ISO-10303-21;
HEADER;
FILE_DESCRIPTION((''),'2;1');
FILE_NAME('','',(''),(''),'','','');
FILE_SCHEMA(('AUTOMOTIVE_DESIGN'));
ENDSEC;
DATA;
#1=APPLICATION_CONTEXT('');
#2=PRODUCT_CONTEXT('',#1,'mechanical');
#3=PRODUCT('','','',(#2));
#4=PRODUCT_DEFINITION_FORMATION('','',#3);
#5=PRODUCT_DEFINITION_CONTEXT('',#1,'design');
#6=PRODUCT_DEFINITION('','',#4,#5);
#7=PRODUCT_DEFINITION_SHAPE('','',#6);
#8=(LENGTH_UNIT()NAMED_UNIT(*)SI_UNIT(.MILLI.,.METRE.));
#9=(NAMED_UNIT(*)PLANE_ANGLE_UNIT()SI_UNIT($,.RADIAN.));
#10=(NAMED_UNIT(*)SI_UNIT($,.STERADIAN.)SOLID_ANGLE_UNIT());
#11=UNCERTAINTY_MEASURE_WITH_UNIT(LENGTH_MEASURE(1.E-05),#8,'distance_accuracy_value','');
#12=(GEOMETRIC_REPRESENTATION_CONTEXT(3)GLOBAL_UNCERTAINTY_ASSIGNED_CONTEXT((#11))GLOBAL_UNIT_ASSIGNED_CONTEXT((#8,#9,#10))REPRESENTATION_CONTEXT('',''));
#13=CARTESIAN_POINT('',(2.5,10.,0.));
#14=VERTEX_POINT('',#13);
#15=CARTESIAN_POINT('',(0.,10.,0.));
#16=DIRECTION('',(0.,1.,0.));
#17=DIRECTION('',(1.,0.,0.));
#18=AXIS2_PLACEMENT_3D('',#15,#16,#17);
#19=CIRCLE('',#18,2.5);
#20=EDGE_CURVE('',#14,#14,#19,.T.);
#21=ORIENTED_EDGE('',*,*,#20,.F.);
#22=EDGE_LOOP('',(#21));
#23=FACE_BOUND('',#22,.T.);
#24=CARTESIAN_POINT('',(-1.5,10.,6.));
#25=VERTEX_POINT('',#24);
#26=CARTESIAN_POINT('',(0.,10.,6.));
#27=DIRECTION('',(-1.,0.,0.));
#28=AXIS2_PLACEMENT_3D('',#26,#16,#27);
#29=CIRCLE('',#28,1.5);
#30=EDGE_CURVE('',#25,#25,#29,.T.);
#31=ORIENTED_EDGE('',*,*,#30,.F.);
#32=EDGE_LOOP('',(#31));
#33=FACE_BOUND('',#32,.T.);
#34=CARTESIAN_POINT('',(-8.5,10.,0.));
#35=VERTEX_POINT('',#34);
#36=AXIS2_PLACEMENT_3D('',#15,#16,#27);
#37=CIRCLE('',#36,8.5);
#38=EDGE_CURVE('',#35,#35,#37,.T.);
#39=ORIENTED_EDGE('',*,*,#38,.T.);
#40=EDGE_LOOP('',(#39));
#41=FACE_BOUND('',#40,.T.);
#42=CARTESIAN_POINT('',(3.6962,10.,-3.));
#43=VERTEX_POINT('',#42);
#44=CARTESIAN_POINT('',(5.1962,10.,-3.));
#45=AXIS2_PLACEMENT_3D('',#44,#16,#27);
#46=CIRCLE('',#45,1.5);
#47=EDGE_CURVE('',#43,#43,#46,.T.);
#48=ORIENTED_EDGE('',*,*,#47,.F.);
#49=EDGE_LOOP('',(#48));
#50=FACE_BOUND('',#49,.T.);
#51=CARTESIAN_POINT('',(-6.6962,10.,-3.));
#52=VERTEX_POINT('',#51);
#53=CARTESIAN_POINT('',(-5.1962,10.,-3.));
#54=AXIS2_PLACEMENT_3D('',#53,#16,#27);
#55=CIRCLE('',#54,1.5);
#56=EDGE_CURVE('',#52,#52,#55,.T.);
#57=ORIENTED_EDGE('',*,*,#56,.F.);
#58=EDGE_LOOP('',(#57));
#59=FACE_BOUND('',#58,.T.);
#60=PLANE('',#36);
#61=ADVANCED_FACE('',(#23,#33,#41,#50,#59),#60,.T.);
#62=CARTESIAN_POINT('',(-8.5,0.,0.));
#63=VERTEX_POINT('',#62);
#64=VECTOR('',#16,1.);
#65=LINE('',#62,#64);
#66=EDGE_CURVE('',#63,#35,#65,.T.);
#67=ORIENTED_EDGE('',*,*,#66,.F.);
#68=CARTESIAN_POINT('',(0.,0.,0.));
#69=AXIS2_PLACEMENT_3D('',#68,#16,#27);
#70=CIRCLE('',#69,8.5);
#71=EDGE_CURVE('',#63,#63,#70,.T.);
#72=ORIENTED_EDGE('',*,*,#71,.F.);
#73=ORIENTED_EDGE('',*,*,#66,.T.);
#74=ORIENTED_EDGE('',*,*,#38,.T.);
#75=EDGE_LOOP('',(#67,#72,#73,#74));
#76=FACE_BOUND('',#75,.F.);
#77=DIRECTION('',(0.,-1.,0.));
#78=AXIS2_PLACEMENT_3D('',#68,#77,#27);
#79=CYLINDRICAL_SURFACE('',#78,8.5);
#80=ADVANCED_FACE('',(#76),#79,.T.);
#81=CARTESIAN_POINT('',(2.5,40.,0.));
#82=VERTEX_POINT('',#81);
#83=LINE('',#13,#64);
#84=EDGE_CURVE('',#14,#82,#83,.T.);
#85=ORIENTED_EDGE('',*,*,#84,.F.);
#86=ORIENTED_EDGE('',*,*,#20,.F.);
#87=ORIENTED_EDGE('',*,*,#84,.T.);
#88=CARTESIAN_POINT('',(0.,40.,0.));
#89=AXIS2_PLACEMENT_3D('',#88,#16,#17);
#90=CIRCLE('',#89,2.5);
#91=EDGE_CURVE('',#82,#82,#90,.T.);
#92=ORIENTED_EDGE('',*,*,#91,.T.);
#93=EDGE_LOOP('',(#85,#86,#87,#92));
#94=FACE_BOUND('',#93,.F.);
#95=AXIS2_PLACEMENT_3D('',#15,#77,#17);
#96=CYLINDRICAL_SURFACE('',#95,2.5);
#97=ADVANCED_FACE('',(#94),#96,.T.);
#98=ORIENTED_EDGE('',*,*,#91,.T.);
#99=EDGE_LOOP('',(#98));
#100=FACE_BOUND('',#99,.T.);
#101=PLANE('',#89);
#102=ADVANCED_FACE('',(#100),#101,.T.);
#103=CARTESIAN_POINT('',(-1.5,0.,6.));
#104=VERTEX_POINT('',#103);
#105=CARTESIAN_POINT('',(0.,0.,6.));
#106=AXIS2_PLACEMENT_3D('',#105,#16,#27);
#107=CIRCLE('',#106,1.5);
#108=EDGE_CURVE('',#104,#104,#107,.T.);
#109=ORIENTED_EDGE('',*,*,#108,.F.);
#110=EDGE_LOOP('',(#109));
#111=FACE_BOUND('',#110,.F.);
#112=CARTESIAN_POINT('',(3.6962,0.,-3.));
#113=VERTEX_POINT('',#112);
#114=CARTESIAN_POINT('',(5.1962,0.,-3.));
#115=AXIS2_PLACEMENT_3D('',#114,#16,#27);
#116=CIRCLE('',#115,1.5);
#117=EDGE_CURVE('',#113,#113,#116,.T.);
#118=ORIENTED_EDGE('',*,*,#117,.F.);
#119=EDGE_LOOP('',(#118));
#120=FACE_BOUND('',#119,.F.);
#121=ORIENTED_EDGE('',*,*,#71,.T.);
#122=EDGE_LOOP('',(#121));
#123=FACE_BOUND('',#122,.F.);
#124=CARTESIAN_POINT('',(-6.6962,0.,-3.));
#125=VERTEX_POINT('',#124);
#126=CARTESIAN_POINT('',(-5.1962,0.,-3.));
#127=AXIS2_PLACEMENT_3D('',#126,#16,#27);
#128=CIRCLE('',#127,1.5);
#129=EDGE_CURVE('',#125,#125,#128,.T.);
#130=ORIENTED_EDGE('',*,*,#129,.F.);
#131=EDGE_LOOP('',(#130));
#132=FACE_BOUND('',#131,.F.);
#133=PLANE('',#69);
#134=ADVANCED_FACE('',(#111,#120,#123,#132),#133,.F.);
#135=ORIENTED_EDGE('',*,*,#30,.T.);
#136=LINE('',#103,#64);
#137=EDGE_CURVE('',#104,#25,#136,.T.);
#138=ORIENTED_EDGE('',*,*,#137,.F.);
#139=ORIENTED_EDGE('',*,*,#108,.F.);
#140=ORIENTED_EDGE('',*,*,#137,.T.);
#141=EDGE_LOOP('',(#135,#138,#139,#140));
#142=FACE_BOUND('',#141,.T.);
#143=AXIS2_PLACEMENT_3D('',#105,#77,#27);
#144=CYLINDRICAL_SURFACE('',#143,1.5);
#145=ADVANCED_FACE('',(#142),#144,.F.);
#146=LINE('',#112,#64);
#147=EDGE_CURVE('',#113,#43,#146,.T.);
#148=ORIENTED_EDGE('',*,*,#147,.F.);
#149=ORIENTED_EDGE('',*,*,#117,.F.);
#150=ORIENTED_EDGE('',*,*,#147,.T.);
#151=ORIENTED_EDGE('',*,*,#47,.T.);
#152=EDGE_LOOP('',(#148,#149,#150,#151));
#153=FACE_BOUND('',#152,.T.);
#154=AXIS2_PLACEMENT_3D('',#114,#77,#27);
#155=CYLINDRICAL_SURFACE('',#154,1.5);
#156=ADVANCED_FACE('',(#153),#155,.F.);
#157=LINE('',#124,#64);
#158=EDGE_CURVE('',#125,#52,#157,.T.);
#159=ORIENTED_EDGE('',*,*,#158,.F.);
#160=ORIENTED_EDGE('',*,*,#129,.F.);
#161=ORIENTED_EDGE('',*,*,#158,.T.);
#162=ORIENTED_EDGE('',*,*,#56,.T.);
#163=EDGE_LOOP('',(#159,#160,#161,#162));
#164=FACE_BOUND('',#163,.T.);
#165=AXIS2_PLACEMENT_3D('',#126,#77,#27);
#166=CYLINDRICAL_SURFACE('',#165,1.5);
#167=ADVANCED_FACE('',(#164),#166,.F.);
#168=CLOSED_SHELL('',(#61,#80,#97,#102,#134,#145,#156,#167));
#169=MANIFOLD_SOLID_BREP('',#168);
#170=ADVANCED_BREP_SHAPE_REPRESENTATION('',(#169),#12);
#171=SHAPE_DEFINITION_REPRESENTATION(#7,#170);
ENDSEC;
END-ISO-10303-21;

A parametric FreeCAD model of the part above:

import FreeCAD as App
import Part
import Sketcher

V = App.Vector

doc = App.newDocument("Part")
body = doc.addObject("PartDesign::Body", "Body")

sketch1 = body.newObject("Sketcher::SketchObject", "Sketch")
sketch1.AttachmentSupport = (doc.getObject("XZ_Plane"), [""])
sketch1.MapMode = "FlatFace"
sketch1.addGeometry([
    Part.Circle(V(0, 0, 0), V(0, 0, 1), 8.5),
    Part.Circle(V(5.2, -3, 0), V(0, 0, 1), 1.5),
    Part.Circle(V(-5.2, -3, 0), V(0, 0, 1), 1.5),
    Part.Circle(V(0, 6, 0), V(0, 0, 1), 1.5),
], False)
sketch1.addConstraint([
    Sketcher.Constraint("Coincident", 0, 3, -1, 1),
    Sketcher.Constraint("Equal", 1, 2),
    Sketcher.Constraint("Equal", 2, 3),
    Sketcher.Constraint("Symmetric", 1, 3, 2, 3, -2),
    Sketcher.Constraint("PointOnObject", 3, 3, -2),
    Sketcher.Constraint("Diameter", 0, 17.0),
    Sketcher.Constraint("Diameter", 1, 3.0),
    Sketcher.Constraint("DistanceY", 1, 3, -1, 1, 3.0),
    Sketcher.Constraint("DistanceY", -1, 1, 3, 3, 6.0),
    Sketcher.Constraint("DistanceX", -1, 1, 1, 3, 5.1962),
])
pad1 = body.newObject("PartDesign::Pad", "Pad")
pad1.Profile = sketch1
pad1.Length = 10
pad1.Reversed = True

sketch2 = body.newObject("Sketcher::SketchObject", "Sketch001")
sketch2.AttachmentSupport = (doc.getObject("XZ_Plane"), [""])
sketch2.MapMode = "FlatFace"
sketch2.AttachmentOffset = App.Placement(V(0, 0, -10), App.Rotation())
sketch2.addGeometry(Part.Circle(V(0, 0, 0), V(0, 0, 1), 2.5), False)
sketch2.addConstraint([
    Sketcher.Constraint("Coincident", 0, 3, -1, 1),
    Sketcher.Constraint("Diameter", 0, 5.0),
])
pad2 = body.newObject("PartDesign::Pad", "Pad001")
pad2.Profile = sketch2
pad2.Length = 30
pad2.Reversed = True

doc.recompute()
